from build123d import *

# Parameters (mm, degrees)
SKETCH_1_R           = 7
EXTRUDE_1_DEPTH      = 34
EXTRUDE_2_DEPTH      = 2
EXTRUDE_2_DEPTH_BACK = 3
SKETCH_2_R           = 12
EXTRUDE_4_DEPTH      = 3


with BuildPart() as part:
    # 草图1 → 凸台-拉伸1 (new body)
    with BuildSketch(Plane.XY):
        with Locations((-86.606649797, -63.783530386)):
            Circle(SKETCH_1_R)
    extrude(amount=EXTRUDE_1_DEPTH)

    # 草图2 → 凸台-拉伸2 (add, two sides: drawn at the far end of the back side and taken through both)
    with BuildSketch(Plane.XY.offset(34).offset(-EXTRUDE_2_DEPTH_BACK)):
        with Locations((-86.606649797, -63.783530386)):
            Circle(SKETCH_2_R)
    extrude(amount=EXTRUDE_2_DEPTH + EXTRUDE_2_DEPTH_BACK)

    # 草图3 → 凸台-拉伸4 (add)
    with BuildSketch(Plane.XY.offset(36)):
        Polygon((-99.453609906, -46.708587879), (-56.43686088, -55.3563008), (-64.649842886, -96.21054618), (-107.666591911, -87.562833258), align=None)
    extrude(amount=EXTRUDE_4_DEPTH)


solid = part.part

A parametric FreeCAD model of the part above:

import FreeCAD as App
import Part
import Sketcher

V = App.Vector
Q = App.Units.Quantity

doc = App.newDocument("Part")
params = doc.addObject("Spreadsheet::Sheet", "Params")
for row, (alias, value) in enumerate([
    ("sketch1_diameter", "14 mm"),
    ("pad1_length", "34 mm"),
    ("sketch2_diameter", "24 mm"),
    ("pad2_length", "2 mm"),
    ("pad2_length2", "3 mm"),
    ("pad3_length", "3 mm"),
], start=1):
    params.set(f"A{row}", alias)
    params.set(f"B{row}", "=" + value)
    params.setAlias(f"B{row}", alias)

body = doc.addObject("PartDesign::Body", "Body")

# Sketch on XY plane
sketch1 = body.newObject("Sketcher::SketchObject", "Sketch")
sketch1.AttachmentSupport = (doc.getObject("XY_Plane"), [""])
sketch1.MapMode = "FlatFace"
sketch1.addGeometry(Part.Circle(V(-87, -64, 0), V(0, 0, 1), 7), False)
sketch1.addConstraint(Sketcher.Constraint("Diameter", 0, Q("14 mm")))
sketch1.addConstraint(Sketcher.Constraint("DistanceX", 0, 3, -1, 1, Q("86.60665 mm")))
sketch1.addConstraint(Sketcher.Constraint("DistanceY", 0, 3, -1, 1, Q("63.78353 mm")))
sketch1.setExpression("Constraints[0]", "Params.sketch1_diameter")
pad1 = body.newObject("PartDesign::Pad", "Pad")
pad1.Profile = sketch1
pad1.setExpression("Length", "Params.pad1_length")

# Sketch on XY plane
sketch2 = body.newObject("Sketcher::SketchObject", "Sketch001")
sketch2.AttachmentSupport = (doc.getObject("XY_Plane"), [""])
sketch2.MapMode = "FlatFace"
sketch2.AttachmentOffset = App.Placement(V(0, 0, 34), App.Rotation())
sketch2.addGeometry(Part.Circle(V(-87, -64, 0), V(0, 0, 1), 12), False)
sketch2.addConstraint(Sketcher.Constraint("Diameter", 0, Q("24 mm")))
sketch2.addConstraint(Sketcher.Constraint("DistanceX", 0, 3, -1, 1, Q("86.60665 mm")))
sketch2.addConstraint(Sketcher.Constraint("DistanceY", 0, 3, -1, 1, Q("63.78353 mm")))
sketch2.setExpression("Constraints[0]", "Params.sketch2_diameter")
pad2 = body.newObject("PartDesign::Pad", "Pad001")
pad2.Profile = sketch2
pad2.Type = "TwoLengths"
pad2.setExpression("Length", "Params.pad2_length")
pad2.setExpression("Length2", "Params.pad2_length2")

# Sketch on XY plane
sketch3 = body.newObject("Sketcher::SketchObject", "Sketch002")
sketch3.AttachmentSupport = (doc.getObject("XY_Plane"), [""])
sketch3.MapMode = "FlatFace"
sketch3.AttachmentOffset = App.Placement(V(0, 0, 36), App.Rotation())
sketch3.addGeometry(Part.LineSegment(V(-56, -55, 0), V(-99, -47, 0)), False)
sketch3.addGeometry(Part.LineSegment(V(-99, -47, 0), V(-108, -88, 0)), False)
sketch3.addGeometry(Part.LineSegment(V(-108, -88, 0), V(-65, -96, 0)), False)
sketch3.addGeometry(Part.LineSegment(V(-65, -96, 0), V(-56, -55, 0)), False)
sketch3.addConstraint(Sketcher.Constraint("Coincident", 0, 2, 1, 1))
sketch3.addConstraint(Sketcher.Constraint("Coincident", 1, 2, 2, 1))
sketch3.addConstraint(Sketcher.Constraint("Coincident", 2, 2, 3, 1))
sketch3.addConstraint(Sketcher.Constraint("Coincident", 3, 2, 0, 1))
sketch3.addConstraint(Sketcher.Constraint("Perpendicular", 0, 1))
sketch3.addConstraint(Sketcher.Constraint("Perpendicular", 1, 2))
sketch3.addConstraint(Sketcher.Constraint("Perpendicular", 2, 3))
sketch3.addConstraint(Sketcher.Constraint("DistanceY", 3, 2, -1, 1, Q("55.356301 mm")))
sketch3.addConstraint(Sketcher.Constraint("Distance", 0, Q("43.87737 mm")))
sketch3.addConstraint(Sketcher.Constraint("DistanceX", 0, 2, -1, 1, Q("99.45361 mm")))
sketch3.addConstraint(Sketcher.Constraint("DistanceX", 1, 2, -1, 1, Q("107.666592 mm")))
sketch3.addConstraint(Sketcher.Constraint("DistanceX", 3, 2, -1, 1, Q("56.436861 mm")))
pad3 = body.newObject("PartDesign::Pad", "Pad002")
pad3.Profile = sketch3
pad3.setExpression("Length", "Params.pad3_length")

doc.recompute()
